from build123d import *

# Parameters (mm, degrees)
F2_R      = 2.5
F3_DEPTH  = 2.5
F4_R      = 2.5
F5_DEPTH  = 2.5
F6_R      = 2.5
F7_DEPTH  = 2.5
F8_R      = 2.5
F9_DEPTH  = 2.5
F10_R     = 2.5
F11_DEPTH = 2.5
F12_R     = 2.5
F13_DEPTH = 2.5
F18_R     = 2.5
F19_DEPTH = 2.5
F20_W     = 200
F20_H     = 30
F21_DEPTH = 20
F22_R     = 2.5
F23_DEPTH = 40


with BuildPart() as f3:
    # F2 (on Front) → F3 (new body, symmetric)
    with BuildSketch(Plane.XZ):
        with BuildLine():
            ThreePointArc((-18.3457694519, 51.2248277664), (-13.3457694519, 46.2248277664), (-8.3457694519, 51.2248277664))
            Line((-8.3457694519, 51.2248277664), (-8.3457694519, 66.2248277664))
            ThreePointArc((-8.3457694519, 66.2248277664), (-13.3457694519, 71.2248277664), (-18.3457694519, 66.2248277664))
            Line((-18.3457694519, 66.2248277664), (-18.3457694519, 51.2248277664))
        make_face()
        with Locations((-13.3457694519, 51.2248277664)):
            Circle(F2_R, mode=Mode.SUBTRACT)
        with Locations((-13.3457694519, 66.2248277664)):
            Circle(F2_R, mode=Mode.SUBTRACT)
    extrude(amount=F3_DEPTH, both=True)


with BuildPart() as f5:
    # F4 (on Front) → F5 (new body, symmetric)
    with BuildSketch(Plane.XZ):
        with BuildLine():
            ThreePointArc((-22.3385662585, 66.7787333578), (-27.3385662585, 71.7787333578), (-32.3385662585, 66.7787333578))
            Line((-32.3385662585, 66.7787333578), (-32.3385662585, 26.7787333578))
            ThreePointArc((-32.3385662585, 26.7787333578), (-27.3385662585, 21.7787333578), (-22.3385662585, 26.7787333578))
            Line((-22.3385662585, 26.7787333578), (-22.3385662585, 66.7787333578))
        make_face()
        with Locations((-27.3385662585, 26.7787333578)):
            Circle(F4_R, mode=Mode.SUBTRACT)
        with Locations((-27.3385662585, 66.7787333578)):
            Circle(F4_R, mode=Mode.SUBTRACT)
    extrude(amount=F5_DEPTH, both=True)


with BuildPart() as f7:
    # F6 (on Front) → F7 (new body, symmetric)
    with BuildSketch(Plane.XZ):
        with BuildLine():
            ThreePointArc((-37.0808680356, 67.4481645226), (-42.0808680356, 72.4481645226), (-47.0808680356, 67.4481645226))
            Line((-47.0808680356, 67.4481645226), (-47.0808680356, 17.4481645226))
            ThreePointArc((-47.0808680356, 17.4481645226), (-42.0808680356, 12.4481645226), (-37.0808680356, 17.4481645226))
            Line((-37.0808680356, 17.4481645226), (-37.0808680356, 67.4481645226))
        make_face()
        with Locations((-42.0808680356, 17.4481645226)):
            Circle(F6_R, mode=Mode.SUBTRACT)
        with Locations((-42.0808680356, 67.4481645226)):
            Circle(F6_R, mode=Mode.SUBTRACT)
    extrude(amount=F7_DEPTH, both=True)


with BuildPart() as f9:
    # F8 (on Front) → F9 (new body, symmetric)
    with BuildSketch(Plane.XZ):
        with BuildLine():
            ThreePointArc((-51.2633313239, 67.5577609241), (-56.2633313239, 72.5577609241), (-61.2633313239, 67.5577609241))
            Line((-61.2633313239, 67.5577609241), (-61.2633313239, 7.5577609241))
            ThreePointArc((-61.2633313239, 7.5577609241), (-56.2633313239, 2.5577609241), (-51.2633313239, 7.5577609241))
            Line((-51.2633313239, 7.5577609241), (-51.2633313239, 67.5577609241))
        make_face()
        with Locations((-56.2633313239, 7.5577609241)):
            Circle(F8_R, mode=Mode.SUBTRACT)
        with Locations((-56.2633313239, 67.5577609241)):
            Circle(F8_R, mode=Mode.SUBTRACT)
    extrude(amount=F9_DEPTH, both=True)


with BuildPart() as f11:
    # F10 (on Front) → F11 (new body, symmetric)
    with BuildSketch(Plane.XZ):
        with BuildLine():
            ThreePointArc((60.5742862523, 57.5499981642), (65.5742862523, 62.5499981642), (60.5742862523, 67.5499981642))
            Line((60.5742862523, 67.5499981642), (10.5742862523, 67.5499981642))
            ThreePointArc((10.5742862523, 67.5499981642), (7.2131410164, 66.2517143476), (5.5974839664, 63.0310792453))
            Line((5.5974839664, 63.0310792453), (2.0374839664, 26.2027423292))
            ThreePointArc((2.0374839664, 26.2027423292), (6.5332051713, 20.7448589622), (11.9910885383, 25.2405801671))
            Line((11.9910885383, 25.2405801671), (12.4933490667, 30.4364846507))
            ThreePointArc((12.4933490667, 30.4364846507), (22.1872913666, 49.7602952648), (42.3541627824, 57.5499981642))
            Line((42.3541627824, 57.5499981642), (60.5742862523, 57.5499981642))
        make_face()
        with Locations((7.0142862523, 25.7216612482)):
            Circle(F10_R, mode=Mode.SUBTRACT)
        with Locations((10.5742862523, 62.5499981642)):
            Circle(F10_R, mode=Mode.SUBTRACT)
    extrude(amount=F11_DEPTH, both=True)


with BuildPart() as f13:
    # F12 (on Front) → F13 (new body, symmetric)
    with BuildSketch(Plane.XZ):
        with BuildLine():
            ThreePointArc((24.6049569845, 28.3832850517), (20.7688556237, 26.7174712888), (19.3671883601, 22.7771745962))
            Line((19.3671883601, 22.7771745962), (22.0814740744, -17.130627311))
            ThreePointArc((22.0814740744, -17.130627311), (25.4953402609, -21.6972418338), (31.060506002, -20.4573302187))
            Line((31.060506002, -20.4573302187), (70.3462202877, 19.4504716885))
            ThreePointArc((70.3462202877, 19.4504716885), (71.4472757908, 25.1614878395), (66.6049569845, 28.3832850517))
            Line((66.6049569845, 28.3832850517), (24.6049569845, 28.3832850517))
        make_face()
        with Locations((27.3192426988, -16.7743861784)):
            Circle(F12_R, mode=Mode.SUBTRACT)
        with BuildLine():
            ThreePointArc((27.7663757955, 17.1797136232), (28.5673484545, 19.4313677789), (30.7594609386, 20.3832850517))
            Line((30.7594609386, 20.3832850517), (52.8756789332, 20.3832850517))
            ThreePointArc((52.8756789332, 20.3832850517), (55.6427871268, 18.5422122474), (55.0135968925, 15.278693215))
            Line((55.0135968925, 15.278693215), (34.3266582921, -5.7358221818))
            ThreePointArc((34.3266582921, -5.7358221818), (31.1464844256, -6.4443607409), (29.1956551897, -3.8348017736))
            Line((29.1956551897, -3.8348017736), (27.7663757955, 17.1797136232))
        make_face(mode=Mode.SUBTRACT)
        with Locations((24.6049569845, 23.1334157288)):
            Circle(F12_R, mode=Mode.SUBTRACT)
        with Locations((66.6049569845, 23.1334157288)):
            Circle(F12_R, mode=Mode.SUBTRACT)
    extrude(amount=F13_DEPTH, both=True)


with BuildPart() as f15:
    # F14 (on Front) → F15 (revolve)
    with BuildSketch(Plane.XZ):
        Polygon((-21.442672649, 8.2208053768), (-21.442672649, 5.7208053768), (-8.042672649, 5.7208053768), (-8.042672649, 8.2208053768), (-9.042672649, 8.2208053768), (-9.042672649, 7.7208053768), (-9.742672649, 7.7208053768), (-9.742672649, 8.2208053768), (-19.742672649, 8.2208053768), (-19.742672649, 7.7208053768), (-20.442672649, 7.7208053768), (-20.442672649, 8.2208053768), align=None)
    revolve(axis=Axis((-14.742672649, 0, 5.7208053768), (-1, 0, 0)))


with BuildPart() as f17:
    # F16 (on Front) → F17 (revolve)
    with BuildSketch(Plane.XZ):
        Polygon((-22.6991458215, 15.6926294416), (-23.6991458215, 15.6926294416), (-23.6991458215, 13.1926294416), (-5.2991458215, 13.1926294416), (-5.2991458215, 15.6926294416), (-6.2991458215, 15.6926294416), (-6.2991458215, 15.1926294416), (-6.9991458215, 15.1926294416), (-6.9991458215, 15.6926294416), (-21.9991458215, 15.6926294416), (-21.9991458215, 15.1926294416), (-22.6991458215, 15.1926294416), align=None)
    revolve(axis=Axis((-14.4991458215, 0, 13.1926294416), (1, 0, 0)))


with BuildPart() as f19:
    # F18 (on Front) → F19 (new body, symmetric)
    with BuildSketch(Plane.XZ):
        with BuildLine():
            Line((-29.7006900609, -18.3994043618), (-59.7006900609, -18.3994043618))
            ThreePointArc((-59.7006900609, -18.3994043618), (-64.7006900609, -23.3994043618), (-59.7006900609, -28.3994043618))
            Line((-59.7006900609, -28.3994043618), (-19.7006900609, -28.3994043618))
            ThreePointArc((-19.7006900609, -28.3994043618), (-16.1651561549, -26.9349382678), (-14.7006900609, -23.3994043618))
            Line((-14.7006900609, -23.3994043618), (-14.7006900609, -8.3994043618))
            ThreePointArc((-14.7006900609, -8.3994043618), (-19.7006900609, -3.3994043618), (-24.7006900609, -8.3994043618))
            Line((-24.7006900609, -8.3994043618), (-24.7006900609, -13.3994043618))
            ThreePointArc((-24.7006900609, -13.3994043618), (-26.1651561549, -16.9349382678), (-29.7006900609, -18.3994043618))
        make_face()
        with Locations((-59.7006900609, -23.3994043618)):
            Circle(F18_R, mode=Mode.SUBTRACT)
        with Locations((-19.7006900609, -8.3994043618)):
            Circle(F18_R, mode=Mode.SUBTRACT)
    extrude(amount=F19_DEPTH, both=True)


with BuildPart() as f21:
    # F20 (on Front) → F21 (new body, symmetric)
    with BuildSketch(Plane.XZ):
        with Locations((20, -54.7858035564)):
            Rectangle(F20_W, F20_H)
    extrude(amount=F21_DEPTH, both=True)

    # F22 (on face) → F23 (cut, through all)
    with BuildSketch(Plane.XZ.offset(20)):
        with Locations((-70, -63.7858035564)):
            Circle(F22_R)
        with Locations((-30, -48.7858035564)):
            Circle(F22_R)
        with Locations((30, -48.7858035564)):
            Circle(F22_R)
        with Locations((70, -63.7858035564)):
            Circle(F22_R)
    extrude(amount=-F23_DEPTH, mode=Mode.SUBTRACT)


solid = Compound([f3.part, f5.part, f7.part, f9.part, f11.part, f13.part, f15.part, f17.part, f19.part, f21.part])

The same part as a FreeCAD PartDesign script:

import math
import FreeCAD as App
import Part
import Sketcher

V = App.Vector

doc = App.newDocument("Part")
body = doc.addObject("PartDesign::Body", "Body")

# Sketch on XZ plane
sketch1 = body.newObject("Sketcher::SketchObject", "Sketch")
sketch1.AttachmentSupport = (doc.getObject("XZ_Plane"), [""])
sketch1.MapMode = "FlatFace"
sketch1.addGeometry(Part.ArcOfCircle(Part.Circle(V(-13.3, 51.2, 0), V(0, 0, 1), 5), math.radians(180), math.radians(360)), False)
sketch1.addGeometry(Part.LineSegment(V(-8.3, 51.2, 0), V(-8.3, 66.2, 0)), False)
sketch1.addGeometry(Part.ArcOfCircle(Part.Circle(V(-13.3, 66.2, 0), V(0, 0, 1), 5), math.radians(0), math.radians(180)), False)
sketch1.addGeometry(Part.LineSegment(V(-18.3, 66.2, 0), V(-18.3, 51.2, 0)), False)
sketch1.addGeometry(Part.Circle(V(-13.3, 51.2, 0), V(0, 0, 1), 2.5), False)
sketch1.addGeometry(Part.Circle(V(-13.3, 66.2, 0), V(0, 0, 1), 2.5), False)
sketch1.addConstraint(Sketcher.Constraint("Tangent", 0, 2, 1, 1))
sketch1.addConstraint(Sketcher.Constraint("Tangent", 1, 2, 2, 1))
sketch1.addConstraint(Sketcher.Constraint("Tangent", 2, 2, 3, 1))
sketch1.addConstraint(Sketcher.Constraint("Tangent", 3, 2, 0, 1))
sketch1.addConstraint(Sketcher.Constraint("Vertical", 1))
sketch1.addConstraint(Sketcher.Constraint("Vertical", 3))
sketch1.addConstraint(Sketcher.Constraint("Coincident", 4, 3, 0, 3))
sketch1.addConstraint(Sketcher.Constraint("Coincident", 5, 3, 2, 3))
sketch1.addConstraint(Sketcher.Constraint("Equal", 4, 5))
sketch1.addConstraint(Sketcher.Constraint("Diameter", 4, 5.0))
sketch1.addConstraint(Sketcher.Constraint("Radius", 0, 5.0))
sketch1.addConstraint(Sketcher.Constraint("DistanceY", 1, 1, 1, 2, 15.0))
sketch1.addConstraint(Sketcher.Constraint("DistanceX", 0, 3, -1, 1, 13.345769))
sketch1.addConstraint(Sketcher.Constraint("DistanceY", -1, 1, 0, 3, 51.224828))
pad1 = body.newObject("PartDesign::Pad", "Pad")
pad1.Profile = sketch1
pad1.Length = 5
pad1.Midplane = True
body2 = doc.addObject("PartDesign::Body", "Body001")

# Sketch on XZ plane
sketch2 = body2.newObject("Sketcher::SketchObject", "Sketch001")
sketch2.AttachmentSupport = (doc.getObject("XZ_Plane001"), [""])
sketch2.MapMode = "FlatFace"
sketch2.addGeometry(Part.ArcOfCircle(Part.Circle(V(-27.3, 66.8, 0), V(0, 0, 1), 5), math.radians(0), math.radians(180)), False)
sketch2.addGeometry(Part.LineSegment(V(-32.3, 66.8, 0), V(-32.3, 26.8, 0)), False)
sketch2.addGeometry(Part.ArcOfCircle(Part.Circle(V(-27.3, 26.8, 0), V(0, 0, 1), 5), math.radians(180), math.radians(360)), False)
sketch2.addGeometry(Part.LineSegment(V(-22.3, 26.8, 0), V(-22.3, 66.8, 0)), False)
sketch2.addGeometry(Part.Circle(V(-27.3, 26.8, 0), V(0, 0, 1), 2.5), False)
sketch2.addGeometry(Part.Circle(V(-27.3, 66.8, 0), V(0, 0, 1), 2.5), False)
sketch2.addConstraint(Sketcher.Constraint("Tangent", 0, 2, 1, 1))
sketch2.addConstraint(Sketcher.Constraint("Tangent", 1, 2, 2, 1))
sketch2.addConstraint(Sketcher.Constraint("Tangent", 2, 2, 3, 1))
sketch2.addConstraint(Sketcher.Constraint("Tangent", 3, 2, 0, 1))
sketch2.addConstraint(Sketcher.Constraint("Vertical", 1))
sketch2.addConstraint(Sketcher.Constraint("Vertical", 3))
sketch2.addConstraint(Sketcher.Constraint("Coincident", 4, 3, 2, 3))
sketch2.addConstraint(Sketcher.Constraint("Coincident", 5, 3, 0, 3))
sketch2.addConstraint(Sketcher.Constraint("Equal", 4, 5))
sketch2.addConstraint(Sketcher.Constraint("Diameter", 4, 5.0))
sketch2.addConstraint(Sketcher.Constraint("Radius", 0, 5.0))
sketch2.addConstraint(Sketcher.Constraint("DistanceY", 1, 2, 1, 1, 40.0))
sketch2.addConstraint(Sketcher.Constraint("DistanceX", 0, 3, -1, 1, 27.338566))
sketch2.addConstraint(Sketcher.Constraint("DistanceY", -1, 1, 0, 3, 66.778733))
pad2 = body2.newObject("PartDesign::Pad", "Pad001")
pad2.Profile = sketch2
pad2.Length = 5
pad2.Midplane = True
body3 = doc.addObject("PartDesign::Body", "Body002")

# Sketch on XZ plane
sketch3 = body3.newObject("Sketcher::SketchObject", "Sketch002")
sketch3.AttachmentSupport = (doc.getObject("XZ_Plane002"), [""])
sketch3.MapMode = "FlatFace"
sketch3.addGeometry(Part.ArcOfCircle(Part.Circle(V(-42.1, 67.4, 0), V(0, 0, 1), 5), math.radians(0), math.radians(180)), False)
sketch3.addGeometry(Part.LineSegment(V(-47.1, 67.4, 0), V(-47.1, 17.4, 0)), False)
sketch3.addGeometry(Part.ArcOfCircle(Part.Circle(V(-42.1, 17.4, 0), V(0, 0, 1), 5), math.radians(180), math.radians(360)), False)
sketch3.addGeometry(Part.LineSegment(V(-37.1, 17.4, 0), V(-37.1, 67.4, 0)), False)
sketch3.addGeometry(Part.Circle(V(-42.1, 17.4, 0), V(0, 0, 1), 2.5), False)
sketch3.addGeometry(Part.Circle(V(-42.1, 67.4, 0), V(0, 0, 1), 2.5), False)
sketch3.addConstraint(Sketcher.Constraint("Tangent", 0, 2, 1, 1))
sketch3.addConstraint(Sketcher.Constraint("Tangent", 1, 2, 2, 1))
sketch3.addConstraint(Sketcher.Constraint("Tangent", 2, 2, 3, 1))
sketch3.addConstraint(Sketcher.Constraint("Tangent", 3, 2, 0, 1))
sketch3.addConstraint(Sketcher.Constraint("Vertical", 1))
sketch3.addConstraint(Sketcher.Constraint("Vertical", 3))
sketch3.addConstraint(Sketcher.Constraint("Coincident", 4, 3, 2, 3))
sketch3.addConstraint(Sketcher.Constraint("Coincident", 5, 3, 0, 3))
sketch3.addConstraint(Sketcher.Constraint("Equal", 4, 5))
sketch3.addConstraint(Sketcher.Constraint("Diameter", 4, 5.0))
sketch3.addConstraint(Sketcher.Constraint("Radius", 0, 5.0))
sketch3.addConstraint(Sketcher.Constraint("DistanceY", 1, 2, 1, 1, 50.0))
sketch3.addConstraint(Sketcher.Constraint("DistanceX", 0, 3, -1, 1, 42.080868))
sketch3.addConstraint(Sketcher.Constraint("DistanceY", -1, 1, 0, 3, 67.448165))
pad3 = body3.newObject("PartDesign::Pad", "Pad002")
pad3.Profile = sketch3
pad3.Length = 5
pad3.Midplane = True
body4 = doc.addObject("PartDesign::Body", "Body003")

# Sketch on XZ plane
sketch4 = body4.newObject("Sketcher::SketchObject", "Sketch003")
sketch4.AttachmentSupport = (doc.getObject("XZ_Plane003"), [""])
sketch4.MapMode = "FlatFace"
sketch4.addGeometry(Part.ArcOfCircle(Part.Circle(V(-56.3, 67.6, 0), V(0, 0, 1), 5), math.radians(0), math.radians(180)), False)
sketch4.addGeometry(Part.LineSegment(V(-61.3, 67.6, 0), V(-61.3, 7.6, 0)), False)
sketch4.addGeometry(Part.ArcOfCircle(Part.Circle(V(-56.3, 7.6, 0), V(0, 0, 1), 5), math.radians(180), math.radians(360)), False)
sketch4.addGeometry(Part.LineSegment(V(-51.3, 7.6, 0), V(-51.3, 67.6, 0)), False)
sketch4.addGeometry(Part.Circle(V(-56.3, 7.6, 0), V(0, 0, 1), 2.5), False)
sketch4.addGeometry(Part.Circle(V(-56.3, 67.6, 0), V(0, 0, 1), 2.5), False)
sketch4.addConstraint(Sketcher.Constraint("Tangent", 0, 2, 1, 1))
sketch4.addConstraint(Sketcher.Constraint("Tangent", 1, 2, 2, 1))
sketch4.addConstraint(Sketcher.Constraint("Tangent", 2, 2, 3, 1))
sketch4.addConstraint(Sketcher.Constraint("Tangent", 3, 2, 0, 1))
sketch4.addConstraint(Sketcher.Constraint("Vertical", 1))
sketch4.addConstraint(Sketcher.Constraint("Vertical", 3))
sketch4.addConstraint(Sketcher.Constraint("Coincident", 4, 3, 2, 3))
sketch4.addConstraint(Sketcher.Constraint("Coincident", 5, 3, 0, 3))
sketch4.addConstraint(Sketcher.Constraint("Equal", 4, 5))
sketch4.addConstraint(Sketcher.Constraint("Diameter", 4, 5.0))
sketch4.addConstraint(Sketcher.Constraint("Radius", 0, 5.0))
sketch4.addConstraint(Sketcher.Constraint("DistanceY", 1, 2, 1, 1, 60.0))
sketch4.addConstraint(Sketcher.Constraint("DistanceX", 0, 3, -1, 1, 56.263331))
sketch4.addConstraint(Sketcher.Constraint("DistanceY", -1, 1, 0, 3, 67.557761))
pad4 = body4.newObject("PartDesign::Pad", "Pad003")
pad4.Profile = sketch4
pad4.Length = 5
pad4.Midplane = True
body5 = doc.addObject("PartDesign::Body", "Body004")

# Sketch on XZ plane
sketch5 = body5.newObject("Sketcher::SketchObject", "Sketch004")
sketch5.AttachmentSupport = (doc.getObject("XZ_Plane004"), [""])
sketch5.MapMode = "FlatFace"
sketch5.addGeometry(Part.ArcOfCircle(Part.Circle(V(60.6, 62.5, 0), V(0, 0, 1), 5), math.radians(-90), math.radians(90)), False)
sketch5.addGeometry(Part.LineSegment(V(60.6, 67.5, 0), V(10.6, 67.5, 0)), False)
sketch5.addGeometry(Part.ArcOfCircle(Part.Circle(V(10.6, 62.5, 0), V(0, 0, 1), 5), math.radians(90), math.radians(174)), False)
sketch5.addGeometry(Part.LineSegment(V(5.6, 63, 0), V(2, 26.2, 0)), False)
sketch5.addGeometry(Part.ArcOfCircle(Part.Circle(V(7, 25.7, 0), V(0, 0, 1), 5), math.radians(174), math.radians(354)), False)
sketch5.addGeometry(Part.LineSegment(V(12, 25.2, 0), V(12.5, 30.4, 0)), False)
sketch5.addGeometry(Part.ArcOfCircle(Part.Circle(V(42.4, 27.5, 0), V(0, 0, 1), 30), math.radians(90), math.radians(174)), False)
sketch5.addGeometry(Part.LineSegment(V(42.4, 57.5, 0), V(60.6, 57.5, 0)), False)
sketch5.addGeometry(Part.Circle(V(7, 25.7, 0), V(0, 0, 1), 2.5), False)
sketch5.addGeometry(Part.Circle(V(10.6, 62.5, 0), V(0, 0, 1), 2.5), False)
sketch5.addConstraint(Sketcher.Constraint("Tangent", 0, 2, 1, 1))
sketch5.addConstraint(Sketcher.Constraint("Tangent", 1, 2, 2, 1))
sketch5.addConstraint(Sketcher.Constraint("Tangent", 2, 2, 3, 1))
sketch5.addConstraint(Sketcher.Constraint("Tangent", 3, 2, 4, 1))
sketch5.addConstraint(Sketcher.Constraint("Tangent", 4, 2, 5, 1))
sketch5.addConstraint(Sketcher.Constraint("Tangent", 5, 2, 6, 2))
sketch5.addConstraint(Sketcher.Constraint("Tangent", 6, 1, 7, 1))
sketch5.addConstraint(Sketcher.Constraint("Tangent", 7, 2, 0, 1))
sketch5.addConstraint(Sketcher.Constraint("Horizontal", 1))
sketch5.addConstraint(Sketcher.Constraint("Horizontal", 7))
sketch5.addConstraint(Sketcher.Constraint("Coincident", 8, 3, 4, 3))
sketch5.addConstraint(Sketcher.Constraint("Coincident", 9, 3, 2, 3))
sketch5.addConstraint(Sketcher.Constraint("Equal", 0, 2))
sketch5.addConstraint(Sketcher.Constraint("Equal", 2, 4))
sketch5.addConstraint(Sketcher.Constraint("Equal", 8, 9))
sketch5.addConstraint(Sketcher.Constraint("Parallel", 3, 5))
sketch5.addConstraint(Sketcher.Constraint("Diameter", 8, 5.0))
sketch5.addConstraint(Sketcher.Constraint("Radius", 0, 5.0))
sketch5.addConstraint(Sketcher.Constraint("Radius", 6, 30.0))
sketch5.addConstraint(Sketcher.Constraint("DistanceX", 1, 2, 1, 1, 50.0))
sketch5.addConstraint(Sketcher.Constraint("Distance", 3, 37.0))
sketch5.addConstraint(Sketcher.Constraint("DistanceY", -1, 1, 0, 3, 62.549998))
sketch5.addConstraint(Sketcher.Constraint("DistanceX", 4, 3, 2, 3, 3.56))
sketch5.addConstraint(Sketcher.Constraint("DistanceX", -1, 1, 4, 2, 11.991089))
pad5 = body5.newObject("PartDesign::Pad", "Pad004")
pad5.Profile = sketch5
pad5.Length = 5
pad5.Midplane = True
body6 = doc.addObject("PartDesign::Body", "Body005")

# Sketch on XZ plane
sketch6 = body6.newObject("Sketcher::SketchObject", "Sketch005")
sketch6.AttachmentSupport = (doc.getObject("XZ_Plane005"), [""])
sketch6.MapMode = "FlatFace"
sketch6.addGeometry(Part.ArcOfCircle(Part.Circle(V(24.6, 23.1, 0), V(0, 0, 1), 5.2), math.radians(90), math.radians(184)), False)
sketch6.addGeometry(Part.LineSegment(V(19.4, 22.8, 0), V(22.1, -17.1, 0)), False)
sketch6.addGeometry(Part.ArcOfCircle(Part.Circle(V(27.3, -16.8, 0), V(0, 0, 1), 5.2), math.radians(-176), math.radians(-45)), False)
sketch6.addGeometry(Part.LineSegment(V(31.1, -20.5, 0), V(70.3, 19.5, 0)), False)
sketch6.addGeometry(Part.ArcOfCircle(Part.Circle(V(66.6, 23.1, 0), V(0, 0, 1), 5.2), math.radians(-45), math.radians(90)), False)
sketch6.addGeometry(Part.LineSegment(V(66.6, 28.4, 0), V(24.6, 28.4, 0)), False)
sketch6.addGeometry(Part.Circle(V(27.3, -16.8, 0), V(0, 0, 1), 2.5), False)
sketch6.addGeometry(Part.LineSegment(V(29.2, -3.8, 0), V(27.8, 17.2, 0)), False)
sketch6.addGeometry(Part.ArcOfCircle(Part.Circle(V(30.8, 17.4, 0), V(0, 0, 1), 3), math.radians(90), math.radians(184)), False)
sketch6.addGeometry(Part.LineSegment(V(30.8, 20.4, 0), V(52.9, 20.4, 0)), False)
sketch6.addGeometry(Part.ArcOfCircle(Part.Circle(V(52.9, 17.4, 0), V(0, 0, 1), 3), math.radians(-45), math.radians(90)), False)
sketch6.addGeometry(Part.LineSegment(V(55, 15.3, 0), V(34.3, -5.7, 0)), False)
sketch6.addGeometry(Part.ArcOfCircle(Part.Circle(V(32.2, -3.6, 0), V(0, 0, 1), 3), math.radians(-176), math.radians(-45)), False)
sketch6.addGeometry(Part.Circle(V(24.6, 23.1, 0), V(0, 0, 1), 2.5), False)
sketch6.addGeometry(Part.Circle(V(66.6, 23.1, 0), V(0, 0, 1), 2.5), False)
sketch6.addConstraint(Sketcher.Constraint("Tangent", 0, 2, 1, 1))
sketch6.addConstraint(Sketcher.Constraint("Tangent", 1, 2, 2, 1))
sketch6.addConstraint(Sketcher.Constraint("Tangent", 2, 2, 3, 1))
sketch6.addConstraint(Sketcher.Constraint("Tangent", 3, 2, 4, 1))
sketch6.addConstraint(Sketcher.Constraint("Tangent", 4, 2, 5, 1))
sketch6.addConstraint(Sketcher.Constraint("Tangent", 5, 2, 0, 1))
sketch6.addConstraint(Sketcher.Constraint("Tangent", 7, 2, 8, 2))
sketch6.addConstraint(Sketcher.Constraint("Tangent", 8, 1, 9, 1))
sketch6.addConstraint(Sketcher.Constraint("Tangent", 9, 2, 10, 2))
sketch6.addConstraint(Sketcher.Constraint("Tangent", 10, 1, 11, 1))
sketch6.addConstraint(Sketcher.Constraint("Tangent", 11, 2, 12, 2))
sketch6.addConstraint(Sketcher.Constraint("Tangent", 12, 1, 7, 1))
sketch6.addConstraint(Sketcher.Constraint("Horizontal", 5))
sketch6.addConstraint(Sketcher.Constraint("Horizontal", 9))
sketch6.addConstraint(Sketcher.Constraint("Coincident", 6, 3, 2, 3))
sketch6.addConstraint(Sketcher.Constraint("Coincident", 13, 3, 0, 3))
sketch6.addConstraint(Sketcher.Constraint("Coincident", 14, 3, 4, 3))
sketch6.addConstraint(Sketcher.Constraint("Equal", 0, 2))
sketch6.addConstraint(Sketcher.Constraint("Equal", 2, 4))
sketch6.addConstraint(Sketcher.Constraint("Equal", 8, 10))
sketch6.addConstraint(Sketcher.Constraint("Equal", 10, 12))
sketch6.addConstraint(Sketcher.Constraint("Equal", 6, 13))
sketch6.addConstraint(Sketcher.Constraint("Equal", 13, 14))
sketch6.addConstraint(Sketcher.Constraint("Parallel", 1, 7))
sketch6.addConstraint(Sketcher.Constraint("Parallel", 3, 11))
sketch6.addConstraint(Sketcher.Constraint("Diameter", 6, 5.0))
sketch6.addConstraint(Sketcher.Constraint("Radius", 8, 3.0))
sketch6.addConstraint(Sketcher.Constraint("DistanceX", 5, 2, 5, 1, 42.0))
sketch6.addConstraint(Sketcher.Constraint("Distance", 1, 40.0))
sketch6.addConstraint(Sketcher.Constraint("Distance", 3, 56.0))
sketch6.addConstraint(Sketcher.Constraint("DistanceY", 10, 3, 4, 2, 11.0))
sketch6.addConstraint(Sketcher.Constraint("Radius", 0, 5.249869))
sketch6.addConstraint(Sketcher.Constraint("DistanceY", 12, 1, -1, 1, 3.834802))
sketch6.addConstraint(Sketcher.Constraint("DistanceY", 2, 2, 12, 3, 16.8261))
sketch6.addConstraint(Sketcher.Constraint("DistanceX", -1, 1, 8, 3, 30.759461))
sketch6.addConstraint(Sketcher.Constraint("DistanceX", -1, 1, 0, 2, 19.367188))
pad6 = body6.newObject("PartDesign::Pad", "Pad005")
pad6.Profile = sketch6
pad6.Length = 5
pad6.Midplane = True
body7 = doc.addObject("PartDesign::Body", "Body006")

# Sketch on XZ plane
sketch7 = body7.newObject("Sketcher::SketchObject", "Sketch006")
sketch7.AttachmentSupport = (doc.getObject("XZ_Plane006"), [""])
sketch7.MapMode = "FlatFace"
sketch7.addGeometry(Part.LineSegment(V(-21.4, 8.2, 0), V(-21.4, 5.7, 0)), False)
sketch7.addGeometry(Part.LineSegment(V(-21.4, 5.7, 0), V(-8, 5.7, 0)), False)
sketch7.addGeometry(Part.LineSegment(V(-8, 5.7, 0), V(-8, 8.2, 0)), False)
sketch7.addGeometry(Part.LineSegment(V(-8, 8.2, 0), V(-9, 8.2, 0)), False)
sketch7.addGeometry(Part.LineSegment(V(-9, 8.2, 0), V(-9, 7.7, 0)), False)
sketch7.addGeometry(Part.LineSegment(V(-9, 7.7, 0), V(-9.7, 7.7, 0)), False)
sketch7.addGeometry(Part.LineSegment(V(-9.7, 7.7, 0), V(-9.7, 8.2, 0)), False)
sketch7.addGeometry(Part.LineSegment(V(-9.7, 8.2, 0), V(-19.7, 8.2, 0)), False)
sketch7.addGeometry(Part.LineSegment(V(-19.7, 8.2, 0), V(-19.7, 7.7, 0)), False)
sketch7.addGeometry(Part.LineSegment(V(-19.7, 7.7, 0), V(-20.4, 7.7, 0)), False)
sketch7.addGeometry(Part.LineSegment(V(-20.4, 7.7, 0), V(-20.4, 8.2, 0)), False)
sketch7.addGeometry(Part.LineSegment(V(-20.4, 8.2, 0), V(-21.4, 8.2, 0)), False)
sketch7.addGeometry(Part.LineSegment(V(-8, 5.7, 0), V(-21.4, 5.7, 0)), True)  # axis
sketch7.addConstraint(Sketcher.Constraint("Coincident", 0, 2, 1, 1))
sketch7.addConstraint(Sketcher.Constraint("Coincident", 1, 2, 2, 1))
sketch7.addConstraint(Sketcher.Constraint("Coincident", 2, 2, 3, 1))
sketch7.addConstraint(Sketcher.Constraint("Coincident", 3, 2, 4, 1))
sketch7.addConstraint(Sketcher.Constraint("Coincident", 4, 2, 5, 1))
sketch7.addConstraint(Sketcher.Constraint("Coincident", 5, 2, 6, 1))
sketch7.addConstraint(Sketcher.Constraint("Coincident", 6, 2, 7, 1))
sketch7.addConstraint(Sketcher.Constraint("Coincident", 7, 2, 8, 1))
sketch7.addConstraint(Sketcher.Constraint("Coincident", 8, 2, 9, 1))
sketch7.addConstraint(Sketcher.Constraint("Coincident", 9, 2, 10, 1))
sketch7.addConstraint(Sketcher.Constraint("Coincident", 10, 2, 11, 1))
sketch7.addConstraint(Sketcher.Constraint("Coincident", 11, 2, 0, 1))
sketch7.addConstraint(Sketcher.Constraint("Vertical", 0))
sketch7.addConstraint(Sketcher.Constraint("Horizontal", 1))
sketch7.addConstraint(Sketcher.Constraint("Vertical", 2))
sketch7.addConstraint(Sketcher.Constraint("Horizontal", 3))
sketch7.addConstraint(Sketcher.Constraint("Vertical", 4))
sketch7.addConstraint(Sketcher.Constraint("Horizontal", 5))
sketch7.addConstraint(Sketcher.Constraint("Vertical", 6))
sketch7.addConstraint(Sketcher.Constraint("Horizontal", 7))
sketch7.addConstraint(Sketcher.Constraint("Vertical", 8))
sketch7.addConstraint(Sketcher.Constraint("Horizontal", 9))
sketch7.addConstraint(Sketcher.Constraint("Vertical", 10))
sketch7.addConstraint(Sketcher.Constraint("Horizontal", 11))
sketch7.addConstraint(Sketcher.Constraint("Horizontal", 12))
sketch7.addConstraint(Sketcher.Constraint("Coincident", 12, 1, 1, 2))
sketch7.addConstraint(Sketcher.Constraint("Horizontal", 3, 2, 6, 2))
sketch7.addConstraint(Sketcher.Constraint("Horizontal", 5, 2, 8, 2))
sketch7.addConstraint(Sketcher.Constraint("Horizontal", 7, 2, 10, 2))
sketch7.addConstraint(Sketcher.Constraint("Vertical", 11, 2, 12, 2))
sketch7.addConstraint(Sketcher.Constraint("Equal", 5, 9))
sketch7.addConstraint(Sketcher.Constraint("Equal", 3, 11))
sketch7.addConstraint(Sketcher.Constraint("DistanceX", 3, 2, 3, 1, 1.0))
sketch7.addConstraint(Sketcher.Constraint("DistanceX", 7, 2, 7, 1, 10.0))
sketch7.addConstraint(Sketcher.Constraint("DistanceX", 1, 1, 1, 2, 13.4))
sketch7.addConstraint(Sketcher.Constraint("DistanceY", 0, 2, 0, 1, 2.5))
sketch7.addConstraint(Sketcher.Constraint("DistanceY", 4, 2, 4, 1, 0.5))
sketch7.addConstraint(Sketcher.Constraint("DistanceX", 0, 2, -1, 1, 21.442673))
sketch7.addConstraint(Sketcher.Constraint("DistanceY", -1, 1, 0, 2, 5.720805))
revolution = body7.newObject("PartDesign::Revolution", "Revolution")
revolution.Profile = sketch7
revolution.ReferenceAxis = (sketch7, ["Axis0"])
revolution.Angle = 360
body8 = doc.addObject("PartDesign::Body", "Body007")

# Sketch on XZ plane
sketch8 = body8.newObject("Sketcher::SketchObject", "Sketch007")
sketch8.AttachmentSupport = (doc.getObject("XZ_Plane007"), [""])
sketch8.MapMode = "FlatFace"
sketch8.addGeometry(Part.LineSegment(V(-22.7, 15.7, 0), V(-23.7, 15.7, 0)), False)
sketch8.addGeometry(Part.LineSegment(V(-23.7, 15.7, 0), V(-23.7, 13.2, 0)), False)
sketch8.addGeometry(Part.LineSegment(V(-23.7, 13.2, 0), V(-5.3, 13.2, 0)), False)
sketch8.addGeometry(Part.LineSegment(V(-5.3, 13.2, 0), V(-5.3, 15.7, 0)), False)
sketch8.addGeometry(Part.LineSegment(V(-5.3, 15.7, 0), V(-6.3, 15.7, 0)), False)
sketch8.addGeometry(Part.LineSegment(V(-6.3, 15.7, 0), V(-6.3, 15.2, 0)), False)
sketch8.addGeometry(Part.LineSegment(V(-6.3, 15.2, 0), V(-7, 15.2, 0)), False)
sketch8.addGeometry(Part.LineSegment(V(-7, 15.2, 0), V(-7, 15.7, 0)), False)
sketch8.addGeometry(Part.LineSegment(V(-7, 15.7, 0), V(-22, 15.7, 0)), False)
sketch8.addGeometry(Part.LineSegment(V(-22, 15.7, 0), V(-22, 15.2, 0)), False)
sketch8.addGeometry(Part.LineSegment(V(-22, 15.2, 0), V(-22.7, 15.2, 0)), False)
sketch8.addGeometry(Part.LineSegment(V(-22.7, 15.2, 0), V(-22.7, 15.7, 0)), False)
sketch8.addGeometry(Part.LineSegment(V(-23.7, 13.2, 0), V(-5.3, 13.2, 0)), True)  # axis
sketch8.addConstraint(Sketcher.Constraint("Coincident", 0, 2, 1, 1))
sketch8.addConstraint(Sketcher.Constraint("Coincident", 1, 2, 2, 1))
sketch8.addConstraint(Sketcher.Constraint("Coincident", 2, 2, 3, 1))
sketch8.addConstraint(Sketcher.Constraint("Coincident", 3, 2, 4, 1))
sketch8.addConstraint(Sketcher.Constraint("Coincident", 4, 2, 5, 1))
sketch8.addConstraint(Sketcher.Constraint("Coincident", 5, 2, 6, 1))
sketch8.addConstraint(Sketcher.Constraint("Coincident", 6, 2, 7, 1))
sketch8.addConstraint(Sketcher.Constraint("Coincident", 7, 2, 8, 1))
sketch8.addConstraint(Sketcher.Constraint("Coincident", 8, 2, 9, 1))
sketch8.addConstraint(Sketcher.Constraint("Coincident", 9, 2, 10, 1))
sketch8.addConstraint(Sketcher.Constraint("Coincident", 10, 2, 11, 1))
sketch8.addConstraint(Sketcher.Constraint("Coincident", 11, 2, 0, 1))
sketch8.addConstraint(Sketcher.Constraint("Horizontal", 0))
sketch8.addConstraint(Sketcher.Constraint("Vertical", 1))
sketch8.addConstraint(Sketcher.Constraint("Horizontal", 2))
sketch8.addConstraint(Sketcher.Constraint("Vertical", 3))
sketch8.addConstraint(Sketcher.Constraint("Horizontal", 4))
sketch8.addConstraint(Sketcher.Constraint("Vertical", 5))
sketch8.addConstraint(Sketcher.Constraint("Horizontal", 6))
sketch8.addConstraint(Sketcher.Constraint("Vertical", 7))
sketch8.addConstraint(Sketcher.Constraint("Horizontal", 8))
sketch8.addConstraint(Sketcher.Constraint("Vertical", 9))
sketch8.addConstraint(Sketcher.Constraint("Horizontal", 10))
sketch8.addConstraint(Sketcher.Constraint("Vertical", 11))
sketch8.addConstraint(Sketcher.Constraint("Horizontal", 12))
sketch8.addConstraint(Sketcher.Constraint("Coincident", 12, 1, 1, 2))
sketch8.addConstraint(Sketcher.Constraint("Horizontal", 0, 2, 3, 2))
sketch8.addConstraint(Sketcher.Constraint("Horizontal", 4, 2, 7, 2))
sketch8.addConstraint(Sketcher.Constraint("Horizontal", 6, 2, 9, 2))
sketch8.addConstraint(Sketcher.Constraint("Vertical", 3, 2, 12, 2))
sketch8.addConstraint(Sketcher.Constraint("Equal", 0, 4))
sketch8.addConstraint(Sketcher.Constraint("Equal", 6, 10))
sketch8.addConstraint(Sketcher.Constraint("DistanceX", 0, 2, 0, 1, 1.0))
sketch8.addConstraint(Sketcher.Constraint("DistanceX", 8, 2, 8, 1, 15.0))
sketch8.addConstraint(Sketcher.Constraint("DistanceX", 2, 1, 2, 2, 18.4))
sketch8.addConstraint(Sketcher.Constraint("DistanceY", 1, 2, 1, 1, 2.5))
sketch8.addConstraint(Sketcher.Constraint("DistanceY", 5, 2, 5, 1, 0.5))
sketch8.addConstraint(Sketcher.Constraint("DistanceY", -1, 1, 0, 2, 15.692629))
sketch8.addConstraint(Sketcher.Constraint("DistanceX", 0, 2, -1, 1, 23.699146))
revolution2 = body8.newObject("PartDesign::Revolution", "Revolution001")
revolution2.Profile = sketch8
revolution2.ReferenceAxis = (sketch8, ["Axis0"])
revolution2.Angle = 360
body9 = doc.addObject("PartDesign::Body", "Body008")

# Sketch on XZ plane
sketch9 = body9.newObject("Sketcher::SketchObject", "Sketch008")
sketch9.AttachmentSupport = (doc.getObject("XZ_Plane008"), [""])
sketch9.MapMode = "FlatFace"
sketch9.addGeometry(Part.LineSegment(V(-29.7, -18.4, 0), V(-59.7, -18.4, 0)), False)
sketch9.addGeometry(Part.ArcOfCircle(Part.Circle(V(-59.7, -23.4, 0), V(0, 0, 1), 5), math.radians(90), math.radians(270)), False)
sketch9.addGeometry(Part.LineSegment(V(-59.7, -28.4, 0), V(-19.7, -28.4, 0)), False)
sketch9.addGeometry(Part.ArcOfCircle(Part.Circle(V(-19.7, -23.4, 0), V(0, 0, 1), 5), math.radians(-90), math.radians(0)), False)
sketch9.addGeometry(Part.LineSegment(V(-14.7, -23.4, 0), V(-14.7, -8.4, 0)), False)
sketch9.addGeometry(Part.ArcOfCircle(Part.Circle(V(-19.7, -8.4, 0), V(0, 0, 1), 5), math.radians(0), math.radians(180)), False)
sketch9.addGeometry(Part.LineSegment(V(-24.7, -8.4, 0), V(-24.7, -13.4, 0)), False)
sketch9.addGeometry(Part.ArcOfCircle(Part.Circle(V(-29.7, -13.4, 0), V(0, 0, 1), 5), math.radians(-90), math.radians(0)), False)
sketch9.addGeometry(Part.Circle(V(-59.7, -23.4, 0), V(0, 0, 1), 2.5), False)
sketch9.addGeometry(Part.Circle(V(-19.7, -8.4, 0), V(0, 0, 1), 2.5), False)
sketch9.addConstraint(Sketcher.Constraint("Tangent", 0, 2, 1, 1))
sketch9.addConstraint(Sketcher.Constraint("Tangent", 1, 2, 2, 1))
sketch9.addConstraint(Sketcher.Constraint("Tangent", 2, 2, 3, 1))
sketch9.addConstraint(Sketcher.Constraint("Tangent", 3, 2, 4, 1))
sketch9.addConstraint(Sketcher.Constraint("Tangent", 4, 2, 5, 1))
sketch9.addConstraint(Sketcher.Constraint("Tangent", 5, 2, 6, 1))
sketch9.addConstraint(Sketcher.Constraint("Tangent", 6, 2, 7, 2))
sketch9.addConstraint(Sketcher.Constraint("Tangent", 7, 1, 0, 1))
sketch9.addConstraint(Sketcher.Constraint("Horizontal", 0))
sketch9.addConstraint(Sketcher.Constraint("Horizontal", 2))
sketch9.addConstraint(Sketcher.Constraint("Vertical", 4))
sketch9.addConstraint(Sketcher.Constraint("Vertical", 6))
sketch9.addConstraint(Sketcher.Constraint("Coincident", 8, 3, 1, 3))
sketch9.addConstraint(Sketcher.Constraint("Coincident", 9, 3, 5, 3))
sketch9.addConstraint(Sketcher.Constraint("Equal", 1, 3))
sketch9.addConstraint(Sketcher.Constraint("Equal", 3, 5))
sketch9.addConstraint(Sketcher.Constraint("Equal", 5, 7))
sketch9.addConstraint(Sketcher.Constraint("Equal", 8, 9))
sketch9.addConstraint(Sketcher.Constraint("Diameter", 8, 5.0))
sketch9.addConstraint(Sketcher.Constraint("Radius", 1, 5.0))
sketch9.addConstraint(Sketcher.Constraint("DistanceX", 0, 2, 0, 1, 30.0))
sketch9.addConstraint(Sketcher.Constraint("DistanceY", 4, 1, 4, 2, 15.0))
sketch9.addConstraint(Sketcher.Constraint("DistanceX", 1, 3, -1, 1, 59.70069))
sketch9.addConstraint(Sketcher.Constraint("DistanceY", 1, 3, -1, 1, 23.399404))
pad7 = body9.newObject("PartDesign::Pad", "Pad006")
pad7.Profile = sketch9
pad7.Length = 5
pad7.Midplane = True
body10 = doc.addObject("PartDesign::Body", "Body009")

# Sketch on XZ plane
sketch10 = body10.newObject("Sketcher::SketchObject", "Sketch009")
sketch10.AttachmentSupport = (doc.getObject("XZ_Plane009"), [""])
sketch10.MapMode = "FlatFace"
sketch10.addGeometry(Part.LineSegment(V(-80, -40, 0), V(-80, -70, 0)), False)
sketch10.addGeometry(Part.LineSegment(V(-80, -70, 0), V(120, -70, 0)), False)
sketch10.addGeometry(Part.LineSegment(V(120, -70, 0), V(120, -40, 0)), False)
sketch10.addGeometry(Part.LineSegment(V(120, -40, 0), V(-80, -40, 0)), False)
sketch10.addConstraint(Sketcher.Constraint("Coincident", 0, 2, 1, 1))
sketch10.addConstraint(Sketcher.Constraint("Coincident", 1, 2, 2, 1))
sketch10.addConstraint(Sketcher.Constraint("Coincident", 2, 2, 3, 1))
sketch10.addConstraint(Sketcher.Constraint("Coincident", 3, 2, 0, 1))
sketch10.addConstraint(Sketcher.Constraint("Vertical", 0))
sketch10.addConstraint(Sketcher.Constraint("Horizontal", 1))
sketch10.addConstraint(Sketcher.Constraint("Vertical", 2))
sketch10.addConstraint(Sketcher.Constraint("Horizontal", 3))
sketch10.addConstraint(Sketcher.Constraint("DistanceX", 1, 1, 1, 2, 200.0))
sketch10.addConstraint(Sketcher.Constraint("DistanceY", 0, 2, 0, 1, 30.0))
sketch10.addConstraint(Sketcher.Constraint("DistanceX", 0, 2, -1, 1, 80.0))
sketch10.addConstraint(Sketcher.Constraint("DistanceY", 0, 2, -1, 1, 69.785804))
pad8 = body10.newObject("PartDesign::Pad", "Pad007")
pad8.Profile = sketch10
pad8.Length = 40
pad8.Midplane = True

# Sketch on XZ plane
sketch11 = body10.newObject("Sketcher::SketchObject", "Sketch010")
sketch11.AttachmentSupport = (doc.getObject("XZ_Plane009"), [""])
sketch11.MapMode = "FlatFace"
sketch11.AttachmentOffset = App.Placement(V(0, 0, 20), App.Rotation())
sketch11.addGeometry(Part.Circle(V(-70, -63.8, 0), V(0, 0, 1), 2.5), False)
sketch11.addGeometry(Part.Circle(V(-30, -48.8, 0), V(0, 0, 1), 2.5), False)
sketch11.addGeometry(Part.Circle(V(30, -48.8, 0), V(0, 0, 1), 2.5), False)
sketch11.addGeometry(Part.Circle(V(70, -63.8, 0), V(0, 0, 1), 2.5), False)
sketch11.addConstraint(Sketcher.Constraint("Equal", 0, 1))
sketch11.addConstraint(Sketcher.Constraint("Equal", 1, 2))
sketch11.addConstraint(Sketcher.Constraint("Equal", 2, 3))
sketch11.addConstraint(Sketcher.Constraint("Symmetric", 1, 3, 2, 3, -2))
sketch11.addConstraint(Sketcher.Constraint("Symmetric", 0, 3, 3, 3, -2))
sketch11.addConstraint(Sketcher.Constraint("Diameter", 0, 5.0))
sketch11.addConstraint(Sketcher.Constraint("DistanceX", 0, 3, -1, 1, 70.0))
sketch11.addConstraint(Sketcher.Constraint("DistanceX", 1, 3, -1, 1, 30.0))
sketch11.addConstraint(Sketcher.Constraint("DistanceY", 0, 3, 1, 3, 15.0))
sketch11.addConstraint(Sketcher.Constraint("DistanceY", 0, 3, -1, 1, 63.785804))
pocket1 = body10.newObject("PartDesign::Pocket", "Pocket")
pocket1.Profile = sketch11
pocket1.Type = "ThroughAll"

doc.recompute()
